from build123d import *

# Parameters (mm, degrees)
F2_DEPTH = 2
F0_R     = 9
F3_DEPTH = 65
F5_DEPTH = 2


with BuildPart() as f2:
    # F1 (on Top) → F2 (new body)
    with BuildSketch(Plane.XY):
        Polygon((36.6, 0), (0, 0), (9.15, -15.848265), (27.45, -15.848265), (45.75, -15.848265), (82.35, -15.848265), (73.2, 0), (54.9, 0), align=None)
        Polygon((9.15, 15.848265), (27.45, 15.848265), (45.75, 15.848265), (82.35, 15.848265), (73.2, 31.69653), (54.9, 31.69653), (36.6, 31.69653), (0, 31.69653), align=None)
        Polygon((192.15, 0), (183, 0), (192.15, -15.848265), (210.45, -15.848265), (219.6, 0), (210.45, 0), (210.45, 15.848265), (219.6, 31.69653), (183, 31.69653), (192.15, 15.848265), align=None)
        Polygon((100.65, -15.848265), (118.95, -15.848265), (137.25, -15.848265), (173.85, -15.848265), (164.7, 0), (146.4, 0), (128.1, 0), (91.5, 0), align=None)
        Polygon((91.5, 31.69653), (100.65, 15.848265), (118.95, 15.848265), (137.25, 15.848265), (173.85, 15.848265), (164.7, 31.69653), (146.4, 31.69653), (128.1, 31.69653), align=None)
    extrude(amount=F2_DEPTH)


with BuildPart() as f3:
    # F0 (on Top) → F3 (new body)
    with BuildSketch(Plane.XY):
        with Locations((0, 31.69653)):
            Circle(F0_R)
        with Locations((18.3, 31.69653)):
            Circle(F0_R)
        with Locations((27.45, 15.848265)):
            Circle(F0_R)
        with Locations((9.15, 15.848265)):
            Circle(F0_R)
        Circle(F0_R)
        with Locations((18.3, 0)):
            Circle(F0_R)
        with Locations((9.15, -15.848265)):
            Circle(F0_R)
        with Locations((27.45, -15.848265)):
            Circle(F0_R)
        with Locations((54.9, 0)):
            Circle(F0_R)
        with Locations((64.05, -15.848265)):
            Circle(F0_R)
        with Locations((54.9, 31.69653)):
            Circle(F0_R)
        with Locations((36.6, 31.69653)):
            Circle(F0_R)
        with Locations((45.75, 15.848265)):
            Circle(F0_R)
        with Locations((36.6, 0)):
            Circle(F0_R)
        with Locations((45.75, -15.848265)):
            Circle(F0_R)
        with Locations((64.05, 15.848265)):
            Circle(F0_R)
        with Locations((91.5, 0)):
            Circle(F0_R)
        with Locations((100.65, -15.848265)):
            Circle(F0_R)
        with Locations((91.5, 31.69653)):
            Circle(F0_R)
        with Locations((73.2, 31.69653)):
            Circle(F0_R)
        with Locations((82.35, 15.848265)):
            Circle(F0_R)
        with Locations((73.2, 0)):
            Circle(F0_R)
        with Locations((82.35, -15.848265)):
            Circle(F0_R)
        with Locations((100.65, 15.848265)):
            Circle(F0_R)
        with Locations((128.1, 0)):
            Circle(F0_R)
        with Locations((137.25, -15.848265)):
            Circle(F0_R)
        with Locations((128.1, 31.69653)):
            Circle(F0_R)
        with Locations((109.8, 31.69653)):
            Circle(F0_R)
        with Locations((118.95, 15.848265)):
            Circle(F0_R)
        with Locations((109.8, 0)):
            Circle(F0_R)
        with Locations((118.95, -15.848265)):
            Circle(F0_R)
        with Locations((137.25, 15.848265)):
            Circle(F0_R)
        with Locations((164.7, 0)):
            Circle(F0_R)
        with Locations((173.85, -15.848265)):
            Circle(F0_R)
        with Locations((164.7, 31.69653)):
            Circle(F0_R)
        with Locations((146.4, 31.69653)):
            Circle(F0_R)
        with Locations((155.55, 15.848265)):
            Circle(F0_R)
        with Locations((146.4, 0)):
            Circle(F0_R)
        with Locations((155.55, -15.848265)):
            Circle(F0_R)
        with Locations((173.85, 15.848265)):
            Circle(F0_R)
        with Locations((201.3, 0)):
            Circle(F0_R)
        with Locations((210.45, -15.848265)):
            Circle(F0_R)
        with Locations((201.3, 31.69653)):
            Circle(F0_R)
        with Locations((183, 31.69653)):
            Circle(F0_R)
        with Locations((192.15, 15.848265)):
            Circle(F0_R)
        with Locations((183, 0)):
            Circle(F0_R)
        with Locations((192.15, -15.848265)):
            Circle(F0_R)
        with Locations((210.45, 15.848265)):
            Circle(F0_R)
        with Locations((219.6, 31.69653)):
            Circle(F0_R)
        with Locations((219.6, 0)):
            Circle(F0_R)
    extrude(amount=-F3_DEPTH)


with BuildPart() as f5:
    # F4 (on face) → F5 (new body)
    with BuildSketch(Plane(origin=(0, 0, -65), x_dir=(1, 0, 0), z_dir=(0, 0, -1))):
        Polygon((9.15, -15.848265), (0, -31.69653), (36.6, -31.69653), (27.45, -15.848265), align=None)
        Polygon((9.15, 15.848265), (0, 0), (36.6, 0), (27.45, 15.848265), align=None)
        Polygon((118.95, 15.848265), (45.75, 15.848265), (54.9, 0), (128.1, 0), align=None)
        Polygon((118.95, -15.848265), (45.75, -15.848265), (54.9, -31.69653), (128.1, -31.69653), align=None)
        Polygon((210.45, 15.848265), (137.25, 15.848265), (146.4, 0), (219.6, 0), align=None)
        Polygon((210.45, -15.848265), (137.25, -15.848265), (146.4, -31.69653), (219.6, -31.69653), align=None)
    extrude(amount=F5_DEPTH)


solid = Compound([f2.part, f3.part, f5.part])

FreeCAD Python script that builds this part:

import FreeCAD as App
import Part
import Sketcher
Q = App.Units.Quantity

doc = App.newDocument("Part")
params = doc.addObject("Spreadsheet::Sheet", "Params")
for row, (alias, value) in enumerate([
    ("sketch1_width", "73.2 mm"),
    ("sketch1_width2", "18.3 mm"),
    ("sketch1_width3", "36.6 mm"),
    ("pad1_length", "2 mm"),
    ("sketch2_diameter", "18 mm"),
    ("pad2_length", "65 mm"),
    ("sketch3_width", "36.6 mm"),
    ("sketch3_width2", "18.3 mm"),
    ("sketch3_width3", "73.2 mm"),
    ("pad3_length", "2 mm"),
], start=1):
    params.set(f"A{row}", alias)
    params.set(f"B{row}", "=" + value)
    params.setAlias(f"B{row}", alias)

body = doc.addObject("PartDesign::Body", "Body")
body.AllowCompound = True

sketch1 = body.newObject("Sketcher::SketchObject", "Sketch")
sketch1.AttachmentSupport = (doc.getObject("XY_Plane"), [""])
sketch1.MapMode = "FlatFace"
sketch1.addGeometry(Part.LineSegment(App.Vector(0, 0, 0), App.Vector(9, -16, 0)), False)
sketch1.addGeometry(Part.LineSegment(App.Vector(9, -16, 0), App.Vector(82, -16, 0)), False)
sketch1.addGeometry(Part.LineSegment(App.Vector(82, -16, 0), App.Vector(73, 0, 0)), False)
sketch1.addGeometry(Part.LineSegment(App.Vector(73, 0, 0), App.Vector(0, 0, 0)), False)
sketch1.addGeometry(Part.LineSegment(App.Vector(9, 16, 0), App.Vector(82, 16, 0)), False)
sketch1.addGeometry(Part.LineSegment(App.Vector(82, 16, 0), App.Vector(73, 32, 0)), False)
sketch1.addGeometry(Part.LineSegment(App.Vector(73, 32, 0), App.Vector(0, 32, 0)), False)
sketch1.addGeometry(Part.LineSegment(App.Vector(0, 32, 0), App.Vector(9, 16, 0)), False)
sketch1.addGeometry(Part.LineSegment(App.Vector(192, 0, 0), App.Vector(183, 0, 0)), False)
sketch1.addGeometry(Part.LineSegment(App.Vector(183, 0, 0), App.Vector(192, -16, 0)), False)
sketch1.addGeometry(Part.LineSegment(App.Vector(192, -16, 0), App.Vector(210, -16, 0)), False)
sketch1.addGeometry(Part.LineSegment(App.Vector(210, -16, 0), App.Vector(220, 0, 0)), False)
sketch1.addGeometry(Part.LineSegment(App.Vector(220, 0, 0), App.Vector(210, 0, 0)), False)
sketch1.addGeometry(Part.LineSegment(App.Vector(210, 0, 0), App.Vector(210, 16, 0)), False)
sketch1.addGeometry(Part.LineSegment(App.Vector(210, 16, 0), App.Vector(220, 32, 0)), False)
sketch1.addGeometry(Part.LineSegment(App.Vector(220, 32, 0), App.Vector(183, 32, 0)), False)
sketch1.addGeometry(Part.LineSegment(App.Vector(183, 32, 0), App.Vector(192, 16, 0)), False)
sketch1.addGeometry(Part.LineSegment(App.Vector(192, 16, 0), App.Vector(192, 0, 0)), False)
sketch1.addGeometry(Part.LineSegment(App.Vector(101, -16, 0), App.Vector(174, -16, 0)), False)
sketch1.addGeometry(Part.LineSegment(App.Vector(174, -16, 0), App.Vector(165, 0, 0)), False)
sketch1.addGeometry(Part.LineSegment(App.Vector(165, 0, 0), App.Vector(92, 0, 0)), False)
sketch1.addGeometry(Part.LineSegment(App.Vector(92, 0, 0), App.Vector(101, -16, 0)), False)
sketch1.addGeometry(Part.LineSegment(App.Vector(92, 32, 0), App.Vector(101, 16, 0)), False)
sketch1.addGeometry(Part.LineSegment(App.Vector(101, 16, 0), App.Vector(174, 16, 0)), False)
sketch1.addGeometry(Part.LineSegment(App.Vector(174, 16, 0), App.Vector(165, 32, 0)), False)
sketch1.addGeometry(Part.LineSegment(App.Vector(165, 32, 0), App.Vector(92, 32, 0)), False)
sketch1.addConstraint(Sketcher.Constraint("Coincident", 0, 2, 1, 1))
sketch1.addConstraint(Sketcher.Constraint("Coincident", 1, 2, 2, 1))
sketch1.addConstraint(Sketcher.Constraint("Coincident", 2, 2, 3, 1))
sketch1.addConstraint(Sketcher.Constraint("Coincident", 3, 2, 0, 1))
sketch1.addConstraint(Sketcher.Constraint("Coincident", 4, 2, 5, 1))
sketch1.addConstraint(Sketcher.Constraint("Coincident", 5, 2, 6, 1))
sketch1.addConstraint(Sketcher.Constraint("Coincident", 6, 2, 7, 1))
sketch1.addConstraint(Sketcher.Constraint("Coincident", 7, 2, 4, 1))
sketch1.addConstraint(Sketcher.Constraint("Coincident", 8, 2, 9, 1))
sketch1.addConstraint(Sketcher.Constraint("Coincident", 9, 2, 10, 1))
sketch1.addConstraint(Sketcher.Constraint("Coincident", 10, 2, 11, 1))
sketch1.addConstraint(Sketcher.Constraint("Coincident", 11, 2, 12, 1))
sketch1.addConstraint(Sketcher.Constraint("Coincident", 12, 2, 13, 1))
sketch1.addConstraint(Sketcher.Constraint("Coincident", 13, 2, 14, 1))
sketch1.addConstraint(Sketcher.Constraint("Coincident", 14, 2, 15, 1))
sketch1.addConstraint(Sketcher.Constraint("Coincident", 15, 2, 16, 1))
sketch1.addConstraint(Sketcher.Constraint("Coincident", 16, 2, 17, 1))
sketch1.addConstraint(Sketcher.Constraint("Coincident", 17, 2, 8, 1))
sketch1.addConstraint(Sketcher.Constraint("Coincident", 18, 2, 19, 1))
sketch1.addConstraint(Sketcher.Constraint("Coincident", 19, 2, 20, 1))
sketch1.addConstraint(Sketcher.Constraint("Coincident", 20, 2, 21, 1))
sketch1.addConstraint(Sketcher.Constraint("Coincident", 21, 2, 18, 1))
sketch1.addConstraint(Sketcher.Constraint("Coincident", 22, 2, 23, 1))
sketch1.addConstraint(Sketcher.Constraint("Coincident", 23, 2, 24, 1))
sketch1.addConstraint(Sketcher.Constraint("Coincident", 24, 2, 25, 1))
sketch1.addConstraint(Sketcher.Constraint("Coincident", 25, 2, 22, 1))
sketch1.addConstraint(Sketcher.Constraint("Horizontal", 1))
sketch1.addConstraint(Sketcher.Constraint("Horizontal", 3))
sketch1.addConstraint(Sketcher.Constraint("Horizontal", 4))
sketch1.addConstraint(Sketcher.Constraint("Horizontal", 6))
sketch1.addConstraint(Sketcher.Constraint("Horizontal", 8))
sketch1.addConstraint(Sketcher.Constraint("Horizontal", 10))
sketch1.addConstraint(Sketcher.Constraint("Horizontal", 12))
sketch1.addConstraint(Sketcher.Constraint("Vertical", 13))
sketch1.addConstraint(Sketcher.Constraint("Horizontal", 15))
sketch1.addConstraint(Sketcher.Constraint("Vertical", 17))
sketch1.addConstraint(Sketcher.Constraint("Horizontal", 18))
sketch1.addConstraint(Sketcher.Constraint("Horizontal", 20))
sketch1.addConstraint(Sketcher.Constraint("Horizontal", 23))
sketch1.addConstraint(Sketcher.Constraint("Horizontal", 25))
sketch1.addConstraint(Sketcher.Constraint("Coincident", 3, 2, -1, 1))
sketch1.addConstraint(Sketcher.Constraint("Symmetric", 1, 2, 4, 2, -1))
sketch1.addConstraint(Sketcher.Constraint("Symmetric", 10, 2, 13, 2, -1))
sketch1.addConstraint(Sketcher.Constraint("Symmetric", 9, 2, 16, 2, -1))
sketch1.addConstraint(Sketcher.Constraint("Symmetric", 21, 2, 22, 2, -1))
sketch1.addConstraint(Sketcher.Constraint("PointOnObject", 6, 2, -2))
sketch1.addConstraint(Sketcher.Constraint("PointOnObject", 8, 2, -1))
sketch1.addConstraint(Sketcher.Constraint("PointOnObject", 11, 2, -1))
sketch1.addConstraint(Sketcher.Constraint("PointOnObject", 19, 2, -1))
sketch1.addConstraint(Sketcher.Constraint("Parallel", 0, 2))
sketch1.addConstraint(Sketcher.Constraint("Parallel", 2, 5))
sketch1.addConstraint(Sketcher.Constraint("Parallel", 5, 7))
sketch1.addConstraint(Sketcher.Constraint("Parallel", 7, 9))
sketch1.addConstraint(Sketcher.Constraint("Parallel", 11, 14))
sketch1.addConstraint(Sketcher.Constraint("Parallel", 9, 16))
sketch1.addConstraint(Sketcher.Constraint("Parallel", 16, 19))
sketch1.addConstraint(Sketcher.Constraint("Parallel", 19, 21))
sketch1.addConstraint(Sketcher.Constraint("Parallel", 21, 22))
sketch1.addConstraint(Sketcher.Constraint("Parallel", 22, 24))
sketch1.addConstraint(Sketcher.Constraint("Horizontal", 1, 2, 9, 2))
sketch1.addConstraint(Sketcher.Constraint("Horizontal", 6, 2, 14, 2))
sketch1.addConstraint(Sketcher.Constraint("Horizontal", 10, 2, 18, 2))
sketch1.addConstraint(Sketcher.Constraint("Horizontal", 15, 2, 24, 2))
sketch1.addConstraint(Sketcher.Constraint("Vertical", 2, 2, 5, 2))
sketch1.addConstraint(Sketcher.Constraint("Vertical", 18, 2, 23, 2))
sketch1.addConstraint(Sketcher.Constraint("Equal", 8, 12))
sketch1.addConstraint(Sketcher.Constraint("Equal", 6, 18))
sketch1.addConstraint(Sketcher.Constraint("Angle", 0, Q("-60 deg")))
sketch1.addConstraint(Sketcher.Constraint("DistanceX", 1, 1, 1, 2, 73.2))
sketch1.addConstraint(Sketcher.Constraint("DistanceX", 10, 1, 10, 2, 18.3))
sketch1.addConstraint(Sketcher.Constraint("DistanceX", 15, 2, 15, 1, 36.6))
sketch1.addConstraint(Sketcher.Constraint("DistanceX", -1, 1, 8, 2, 183.0))
sketch1.addConstraint(Sketcher.Constraint("DistanceX", -1, 1, 19, 2, 164.7))
sketch1.setExpression("Constraints[68]", "Params.sketch1_width")
sketch1.setExpression("Constraints[69]", "Params.sketch1_width2")
sketch1.setExpression("Constraints[70]", "Params.sketch1_width3")
pad1 = body.newObject("PartDesign::Pad", "Pad")
pad1.Profile = sketch1
pad1.setExpression("Length", "Params.pad1_length")
body2 = doc.addObject("PartDesign::Body", "Body001")
body2.AllowCompound = True

sketch2 = body2.newObject("Sketcher::SketchObject", "Sketch001")
sketch2.AttachmentSupport = (doc.getObject("XY_Plane001"), [""])
sketch2.MapMode = "FlatFace"
sketch2.addGeometry(Part.Circle(App.Vector(0, 32, 0), App.Vector(0, 0, 1), 9), False)
sketch2.addGeometry(Part.Circle(App.Vector(18, 32, 0), App.Vector(0, 0, 1), 9), False)
sketch2.addGeometry(Part.Circle(App.Vector(27, 16, 0), App.Vector(0, 0, 1), 9), False)
sketch2.addGeometry(Part.Circle(App.Vector(9, 16, 0), App.Vector(0, 0, 1), 9), False)
sketch2.addGeometry(Part.Circle(App.Vector(0, 0, 0), App.Vector(0, 0, 1), 9), False)
sketch2.addGeometry(Part.Circle(App.Vector(18, 0, 0), App.Vector(0, 0, 1), 9), False)
sketch2.addGeometry(Part.Circle(App.Vector(9, -16, 0), App.Vector(0, 0, 1), 9), False)
sketch2.addGeometry(Part.Circle(App.Vector(27, -16, 0), App.Vector(0, 0, 1), 9), False)
sketch2.addGeometry(Part.Circle(App.Vector(55, 0, 0), App.Vector(0, 0, 1), 9), False)
sketch2.addGeometry(Part.Circle(App.Vector(64, -16, 0), App.Vector(0, 0, 1), 9), False)
sketch2.addGeometry(Part.Circle(App.Vector(55, 32, 0), App.Vector(0, 0, 1), 9), False)
sketch2.addGeometry(Part.Circle(App.Vector(37, 32, 0), App.Vector(0, 0, 1), 9), False)
sketch2.addGeometry(Part.Circle(App.Vector(46, 16, 0), App.Vector(0, 0, 1), 9), False)
sketch2.addGeometry(Part.Circle(App.Vector(37, 0, 0), App.Vector(0, 0, 1), 9), False)
sketch2.addGeometry(Part.Circle(App.Vector(46, -16, 0), App.Vector(0, 0, 1), 9), False)
sketch2.addGeometry(Part.Circle(App.Vector(64, 16, 0), App.Vector(0, 0, 1), 9), False)
sketch2.addGeometry(Part.Circle(App.Vector(92, 0, 0), App.Vector(0, 0, 1), 9), False)
sketch2.addGeometry(Part.Circle(App.Vector(101, -16, 0), App.Vector(0, 0, 1), 9), False)
sketch2.addGeometry(Part.Circle(App.Vector(92, 32, 0), App.Vector(0, 0, 1), 9), False)
sketch2.addGeometry(Part.Circle(App.Vector(73, 32, 0), App.Vector(0, 0, 1), 9), False)
sketch2.addGeometry(Part.Circle(App.Vector(82, 16, 0), App.Vector(0, 0, 1), 9), False)
sketch2.addGeometry(Part.Circle(App.Vector(73, 0, 0), App.Vector(0, 0, 1), 9), False)
sketch2.addGeometry(Part.Circle(App.Vector(82, -16, 0), App.Vector(0, 0, 1), 9), False)
sketch2.addGeometry(Part.Circle(App.Vector(101, 16, 0), App.Vector(0, 0, 1), 9), False)
sketch2.addGeometry(Part.Circle(App.Vector(128, 0, 0), App.Vector(0, 0, 1), 9), False)
sketch2.addGeometry(Part.Circle(App.Vector(137, -16, 0), App.Vector(0, 0, 1), 9), False)
sketch2.addGeometry(Part.Circle(App.Vector(128, 32, 0), App.Vector(0, 0, 1), 9), False)
sketch2.addGeometry(Part.Circle(App.Vector(110, 32, 0), App.Vector(0, 0, 1), 9), False)
sketch2.addGeometry(Part.Circle(App.Vector(119, 16, 0), App.Vector(0, 0, 1), 9), False)
sketch2.addGeometry(Part.Circle(App.Vector(110, 0, 0), App.Vector(0, 0, 1), 9), False)
sketch2.addGeometry(Part.Circle(App.Vector(119, -16, 0), App.Vector(0, 0, 1), 9), False)
sketch2.addGeometry(Part.Circle(App.Vector(137, 16, 0), App.Vector(0, 0, 1), 9), False)
sketch2.addGeometry(Part.Circle(App.Vector(165, 0, 0), App.Vector(0, 0, 1), 9), False)
sketch2.addGeometry(Part.Circle(App.Vector(174, -16, 0), App.Vector(0, 0, 1), 9), False)
sketch2.addGeometry(Part.Circle(App.Vector(165, 32, 0), App.Vector(0, 0, 1), 9), False)
sketch2.addGeometry(Part.Circle(App.Vector(146, 32, 0), App.Vector(0, 0, 1), 9), False)
sketch2.addGeometry(Part.Circle(App.Vector(156, 16, 0), App.Vector(0, 0, 1), 9), False)
sketch2.addGeometry(Part.Circle(App.Vector(146, 0, 0), App.Vector(0, 0, 1), 9), False)
sketch2.addGeometry(Part.Circle(App.Vector(156, -16, 0), App.Vector(0, 0, 1), 9), False)
sketch2.addGeometry(Part.Circle(App.Vector(174, 16, 0), App.Vector(0, 0, 1), 9), False)
sketch2.addGeometry(Part.Circle(App.Vector(201, 0, 0), App.Vector(0, 0, 1), 9), False)
sketch2.addGeometry(Part.Circle(App.Vector(210, -16, 0), App.Vector(0, 0, 1), 9), False)
sketch2.addGeometry(Part.Circle(App.Vector(201, 32, 0), App.Vector(0, 0, 1), 9), False)
sketch2.addGeometry(Part.Circle(App.Vector(183, 32, 0), App.Vector(0, 0, 1), 9), False)
sketch2.addGeometry(Part.Circle(App.Vector(192, 16, 0), App.Vector(0, 0, 1), 9), False)
sketch2.addGeometry(Part.Circle(App.Vector(183, 0, 0), App.Vector(0, 0, 1), 9), False)
sketch2.addGeometry(Part.Circle(App.Vector(192, -16, 0), App.Vector(0, 0, 1), 9), False)
sketch2.addGeometry(Part.Circle(App.Vector(210, 16, 0), App.Vector(0, 0, 1), 9), False)
sketch2.addGeometry(Part.Circle(App.Vector(220, 32, 0), App.Vector(0, 0, 1), 9), False)
sketch2.addGeometry(Part.Circle(App.Vector(220, 0, 0), App.Vector(0, 0, 1), 9), False)
sketch2.addConstraint(Sketcher.Constraint("Coincident", 4, 3, -1, 1))
sketch2.addConstraint(Sketcher.Constraint("Equal", 0, 1))
sketch2.addConstraint(Sketcher.Constraint("Equal", 1, 2))
sketch2.addConstraint(Sketcher.Constraint("Equal", 2, 3))
sketch2.addConstraint(Sketcher.Constraint("Equal", 3, 4))
sketch2.addConstraint(Sketcher.Constraint("Equal", 4, 5))
sketch2.addConstraint(Sketcher.Constraint("Equal", 5, 6))
sketch2.addConstraint(Sketcher.Constraint("Equal", 6, 7))
sketch2.addConstraint(Sketcher.Constraint("Equal", 7, 8))
sketch2.addConstraint(Sketcher.Constraint("Equal", 8, 9))
sketch2.addConstraint(Sketcher.Constraint("Equal", 9, 10))
sketch2.addConstraint(Sketcher.Constraint("Equal", 10, 11))
sketch2.addConstraint(Sketcher.Constraint("Equal", 11, 12))
sketch2.addConstraint(Sketcher.Constraint("Equal", 12, 13))
sketch2.addConstraint(Sketcher.Constraint("Equal", 13, 14))
sketch2.addConstraint(Sketcher.Constraint("Equal", 14, 15))
sketch2.addConstraint(Sketcher.Constraint("Equal", 15, 16))
sketch2.addConstraint(Sketcher.Constraint("Equal", 16, 17))
sketch2.addConstraint(Sketcher.Constraint("Equal", 17, 18))
sketch2.addConstraint(Sketcher.Constraint("Equal", 18, 19))
sketch2.addConstraint(Sketcher.Constraint("Equal", 19, 20))
sketch2.addConstraint(Sketcher.Constraint("Equal", 20, 21))
sketch2.addConstraint(Sketcher.Constraint("Equal", 21, 22))
sketch2.addConstraint(Sketcher.Constraint("Equal", 22, 23))
sketch2.addConstraint(Sketcher.Constraint("Equal", 23, 24))
sketch2.addConstraint(Sketcher.Constraint("Equal", 24, 25))
sketch2.addConstraint(Sketcher.Constraint("Equal", 25, 26))
sketch2.addConstraint(Sketcher.Constraint("Equal", 26, 27))
sketch2.addConstraint(Sketcher.Constraint("Equal", 27, 28))
sketch2.addConstraint(Sketcher.Constraint("Equal", 28, 29))
sketch2.addConstraint(Sketcher.Constraint("Equal", 29, 30))
sketch2.addConstraint(Sketcher.Constraint("Equal", 30, 31))
sketch2.addConstraint(Sketcher.Constraint("Equal", 31, 32))
sketch2.addConstraint(Sketcher.Constraint("Equal", 32, 33))
sketch2.addConstraint(Sketcher.Constraint("Equal", 33, 34))
sketch2.addConstraint(Sketcher.Constraint("Equal", 34, 35))
sketch2.addConstraint(Sketcher.Constraint("Equal", 35, 36))
sketch2.addConstraint(Sketcher.Constraint("Equal", 36, 37))
sketch2.addConstraint(Sketcher.Constraint("Equal", 37, 38))
sketch2.addConstraint(Sketcher.Constraint("Equal", 38, 39))
sketch2.addConstraint(Sketcher.Constraint("Equal", 39, 40))
sketch2.addConstraint(Sketcher.Constraint("Equal", 40, 41))
sketch2.addConstraint(Sketcher.Constraint("Equal", 41, 42))
sketch2.addConstraint(Sketcher.Constraint("Equal", 42, 43))
sketch2.addConstraint(Sketcher.Constraint("Equal", 43, 44))
sketch2.addConstraint(Sketcher.Constraint("Equal", 44, 45))
sketch2.addConstraint(Sketcher.Constraint("Equal", 45, 46))
sketch2.addConstraint(Sketcher.Constraint("Equal", 46, 47))
sketch2.addConstraint(Sketcher.Constraint("Equal", 47, 48))
sketch2.addConstraint(Sketcher.Constraint("Equal", 48, 49))
sketch2.addConstraint(Sketcher.Constraint("Symmetric", 3, 3, 6, 3, -1))
sketch2.addConstraint(Sketcher.Constraint("Symmetric", 2, 3, 7, 3, -1))
sketch2.addConstraint(Sketcher.Constraint("Symmetric", 12, 3, 14, 3, -1))
sketch2.addConstraint(Sketcher.Constraint("Symmetric", 9, 3, 15, 3, -1))
sketch2.addConstraint(Sketcher.Constraint("Symmetric", 20, 3, 22, 3, -1))
sketch2.addConstraint(Sketcher.Constraint("Symmetric", 17, 3, 23, 3, -1))
sketch2.addConstraint(Sketcher.Constraint("Symmetric", 28, 3, 30, 3, -1))
sketch2.addConstraint(Sketcher.Constraint("Symmetric", 25, 3, 31, 3, -1))
sketch2.addConstraint(Sketcher.Constraint("Symmetric", 36, 3, 38, 3, -1))
sketch2.addConstraint(Sketcher.Constraint("Symmetric", 33, 3, 39, 3, -1))
sketch2.addConstraint(Sketcher.Constraint("Symmetric", 44, 3, 46, 3, -1))
sketch2.addConstraint(Sketcher.Constraint("Symmetric", 41, 3, 47, 3, -1))
sketch2.addConstraint(Sketcher.Constraint("PointOnObject", 0, 3, -2))
sketch2.addConstraint(Sketcher.Constraint("PointOnObject", 5, 3, -1))
sketch2.addConstraint(Sketcher.Constraint("PointOnObject", 8, 3, -1))
sketch2.addConstraint(Sketcher.Constraint("PointOnObject", 13, 3, -1))
sketch2.addConstraint(Sketcher.Constraint("PointOnObject", 16, 3, -1))
sketch2.addConstraint(Sketcher.Constraint("PointOnObject", 21, 3, -1))
sketch2.addConstraint(Sketcher.Constraint("PointOnObject", 24, 3, -1))
sketch2.addConstraint(Sketcher.Constraint("PointOnObject", 29, 3, -1))
sketch2.addConstraint(Sketcher.Constraint("PointOnObject", 32, 3, -1))
sketch2.addConstraint(Sketcher.Constraint("PointOnObject", 37, 3, -1))
sketch2.addConstraint(Sketcher.Constraint("PointOnObject", 40, 3, -1))
sketch2.addConstraint(Sketcher.Constraint("PointOnObject", 45, 3, -1))
sketch2.addConstraint(Sketcher.Constraint("PointOnObject", 49, 3, -1))
sketch2.addConstraint(Sketcher.Constraint("Horizontal", 0, 3, 1, 3))
sketch2.addConstraint(Sketcher.Constraint("Horizontal", 2, 3, 3, 3))
sketch2.addConstraint(Sketcher.Constraint("Horizontal", 7, 3, 9, 3))
sketch2.addConstraint(Sketcher.Constraint("Horizontal", 1, 3, 10, 3))
sketch2.addConstraint(Sketcher.Constraint("Horizontal", 10, 3, 11, 3))
sketch2.addConstraint(Sketcher.Constraint("Horizontal", 3, 3, 12, 3))
sketch2.addConstraint(Sketcher.Constraint("Horizontal", 14, 3, 17, 3))
sketch2.addConstraint(Sketcher.Constraint("Horizontal", 11, 3, 18, 3))
sketch2.addConstraint(Sketcher.Constraint("Horizontal", 18, 3, 19, 3))
sketch2.addConstraint(Sketcher.Constraint("Horizontal", 15, 3, 20, 3))
sketch2.addConstraint(Sketcher.Constraint("Horizontal", 22, 3, 25, 3))
sketch2.addConstraint(Sketcher.Constraint("Horizontal", 19, 3, 26, 3))
sketch2.addConstraint(Sketcher.Constraint("Horizontal", 26, 3, 27, 3))
sketch2.addConstraint(Sketcher.Constraint("Horizontal", 23, 3, 28, 3))
sketch2.addConstraint(Sketcher.Constraint("Horizontal", 30, 3, 33, 3))
sketch2.addConstraint(Sketcher.Constraint("Horizontal", 27, 3, 34, 3))
sketch2.addConstraint(Sketcher.Constraint("Horizontal", 34, 3, 35, 3))
sketch2.addConstraint(Sketcher.Constraint("Horizontal", 31, 3, 36, 3))
sketch2.addConstraint(Sketcher.Constraint("Horizontal", 38, 3, 41, 3))
sketch2.addConstraint(Sketcher.Constraint("Horizontal", 35, 3, 42, 3))
sketch2.addConstraint(Sketcher.Constraint("Horizontal", 42, 3, 43, 3))
sketch2.addConstraint(Sketcher.Constraint("Horizontal", 39, 3, 44, 3))
sketch2.addConstraint(Sketcher.Constraint("Horizontal", 43, 3, 48, 3))
sketch2.addConstraint(Sketcher.Constraint("Vertical", 1, 3, 5, 3))
sketch2.addConstraint(Sketcher.Constraint("Vertical", 8, 3, 10, 3))
sketch2.addConstraint(Sketcher.Constraint("Vertical", 11, 3, 13, 3))
sketch2.addConstraint(Sketcher.Constraint("Vertical", 16, 3, 18, 3))
sketch2.addConstraint(Sketcher.Constraint("Vertical", 19, 3, 21, 3))
sketch2.addConstraint(Sketcher.Constraint("Vertical", 24, 3, 26, 3))
sketch2.addConstraint(Sketcher.Constraint("Vertical", 27, 3, 29, 3))
sketch2.addConstraint(Sketcher.Constraint("Vertical", 32, 3, 34, 3))
sketch2.addConstraint(Sketcher.Constraint("Vertical", 35, 3, 37, 3))
sketch2.addConstraint(Sketcher.Constraint("Vertical", 40, 3, 42, 3))
sketch2.addConstraint(Sketcher.Constraint("Vertical", 43, 3, 45, 3))
sketch2.addConstraint(Sketcher.Constraint("Vertical", 48, 3, 49, 3))
sketch2.addConstraint(Sketcher.Constraint("Diameter", 0, 18.0))
sketch2.addConstraint(Sketcher.Constraint("DistanceX", -1, 1, 43, 3, 183.0))
sketch2.addConstraint(Sketcher.Constraint("DistanceX", -1, 1, 1, 3, 18.3))
sketch2.addConstraint(Sketcher.Constraint("DistanceX", -1, 1, 8, 3, 54.9))
sketch2.addConstraint(Sketcher.Constraint("DistanceX", -1, 1, 11, 3, 36.6))
sketch2.addConstraint(Sketcher.Constraint("DistanceX", -1, 1, 16, 3, 91.5))
sketch2.addConstraint(Sketcher.Constraint("DistanceX", -1, 1, 19, 3, 73.2))
sketch2.addConstraint(Sketcher.Constraint("DistanceX", -1, 1, 24, 3, 128.1))
sketch2.addConstraint(Sketcher.Constraint("DistanceX", -1, 1, 27, 3, 109.8))
sketch2.addConstraint(Sketcher.Constraint("DistanceX", -1, 1, 32, 3, 164.7))
sketch2.addConstraint(Sketcher.Constraint("DistanceX", -1, 1, 35, 3, 146.4))
sketch2.addConstraint(Sketcher.Constraint("DistanceX", -1, 1, 40, 3, 201.3))
sketch2.addConstraint(Sketcher.Constraint("DistanceX", -1, 1, 48, 3, 219.6))
sketch2.addConstraint(Sketcher.Constraint("DistanceX", 3, 3, 2, 3, 18.3))
sketch2.addConstraint(Sketcher.Constraint("DistanceX", 7, 3, 9, 3, 36.6))
sketch2.addConstraint(Sketcher.Constraint("DistanceX", 2, 3, 12, 3, 18.3))
sketch2.addConstraint(Sketcher.Constraint("DistanceX", 9, 3, 17, 3, 36.6))
sketch2.addConstraint(Sketcher.Constraint("DistanceX", 15, 3, 20, 3, 18.3))
sketch2.addConstraint(Sketcher.Constraint("DistanceX", 17, 3, 25, 3, 36.6))
sketch2.addConstraint(Sketcher.Constraint("DistanceX", 23, 3, 28, 3, 18.3))
sketch2.addConstraint(Sketcher.Constraint("DistanceX", 25, 3, 33, 3, 36.6))
sketch2.addConstraint(Sketcher.Constraint("DistanceX", 31, 3, 36, 3, 18.3))
sketch2.addConstraint(Sketcher.Constraint("DistanceX", 33, 3, 41, 3, 36.6))
sketch2.addConstraint(Sketcher.Constraint("DistanceX", 39, 3, 44, 3, 18.3))
sketch2.addConstraint(Sketcher.Constraint("DistanceX", -1, 1, 2, 3, 27.45))
sketch2.addConstraint(Sketcher.Constraint("DistanceY", -1, 1, 0, 3, 31.69653))
sketch2.addConstraint(Sketcher.Constraint("DistanceY", 6, 3, 3, 3, 31.69653))
sketch2.setExpression("Constraints[110]", "Params.sketch2_diameter")
pad2 = body2.newObject("PartDesign::Pad", "Pad001")
pad2.Profile = sketch2
pad2.setExpression("Length", "Params.pad2_length")
pad2.Reversed = True
body3 = doc.addObject("PartDesign::Body", "Body002")
body3.AllowCompound = True

sketch3 = body3.newObject("Sketcher::SketchObject", "Sketch002")
sketch3.AttachmentSupport = (doc.getObject("XY_Plane002"), [""])
sketch3.MapMode = "FlatFace"
sketch3.AttachmentOffset = App.Placement(App.Vector(0, 0, -65), App.Rotation())
sketch3.addGeometry(Part.LineSegment(App.Vector(9, 16, 0), App.Vector(0, 32, 0)), False)
sketch3.addGeometry(Part.LineSegment(App.Vector(0, 32, 0), App.Vector(37, 32, 0)), False)
sketch3.addGeometry(Part.LineSegment(App.Vector(37, 32, 0), App.Vector(27, 16, 0)), False)
sketch3.addGeometry(Part.LineSegment(App.Vector(27, 16, 0), App.Vector(9, 16, 0)), False)
sketch3.addGeometry(Part.LineSegment(App.Vector(9, -16, 0), App.Vector(0, 0, 0)), False)
sketch3.addGeometry(Part.LineSegment(App.Vector(0, 0, 0), App.Vector(37, 0, 0)), False)
sketch3.addGeometry(Part.LineSegment(App.Vector(37, 0, 0), App.Vector(27, -16, 0)), False)
sketch3.addGeometry(Part.LineSegment(App.Vector(27, -16, 0), App.Vector(9, -16, 0)), False)
sketch3.addGeometry(Part.LineSegment(App.Vector(119, -16, 0), App.Vector(46, -16, 0)), False)
sketch3.addGeometry(Part.LineSegment(App.Vector(46, -16, 0), App.Vector(55, 0, 0)), False)
sketch3.addGeometry(Part.LineSegment(App.Vector(55, 0, 0), App.Vector(128, 0, 0)), False)
sketch3.addGeometry(Part.LineSegment(App.Vector(128, 0, 0), App.Vector(119, -16, 0)), False)
sketch3.addGeometry(Part.LineSegment(App.Vector(119, 16, 0), App.Vector(46, 16, 0)), False)
sketch3.addGeometry(Part.LineSegment(App.Vector(46, 16, 0), App.Vector(55, 32, 0)), False)
sketch3.addGeometry(Part.LineSegment(App.Vector(55, 32, 0), App.Vector(128, 32, 0)), False)
sketch3.addGeometry(Part.LineSegment(App.Vector(128, 32, 0), App.Vector(119, 16, 0)), False)
sketch3.addGeometry(Part.LineSegment(App.Vector(210, -16, 0), App.Vector(137, -16, 0)), False)
sketch3.addGeometry(Part.LineSegment(App.Vector(137, -16, 0), App.Vector(146, 0, 0)), False)
sketch3.addGeometry(Part.LineSegment(App.Vector(146, 0, 0), App.Vector(220, 0, 0)), False)
sketch3.addGeometry(Part.LineSegment(App.Vector(220, 0, 0), App.Vector(210, -16, 0)), False)
sketch3.addGeometry(Part.LineSegment(App.Vector(210, 16, 0), App.Vector(137, 16, 0)), False)
sketch3.addGeometry(Part.LineSegment(App.Vector(137, 16, 0), App.Vector(146, 32, 0)), False)
sketch3.addGeometry(Part.LineSegment(App.Vector(146, 32, 0), App.Vector(220, 32, 0)), False)
sketch3.addGeometry(Part.LineSegment(App.Vector(220, 32, 0), App.Vector(210, 16, 0)), False)
sketch3.addConstraint(Sketcher.Constraint("Coincident", 0, 2, 1, 1))
sketch3.addConstraint(Sketcher.Constraint("Coincident", 1, 2, 2, 1))
sketch3.addConstraint(Sketcher.Constraint("Coincident", 2, 2, 3, 1))
sketch3.addConstraint(Sketcher.Constraint("Coincident", 3, 2, 0, 1))
sketch3.addConstraint(Sketcher.Constraint("Coincident", 4, 2, 5, 1))
sketch3.addConstraint(Sketcher.Constraint("Coincident", 5, 2, 6, 1))
sketch3.addConstraint(Sketcher.Constraint("Coincident", 6, 2, 7, 1))
sketch3.addConstraint(Sketcher.Constraint("Coincident", 7, 2, 4, 1))
sketch3.addConstraint(Sketcher.Constraint("Coincident", 8, 2, 9, 1))
sketch3.addConstraint(Sketcher.Constraint("Coincident", 9, 2, 10, 1))
sketch3.addConstraint(Sketcher.Constraint("Coincident", 10, 2, 11, 1))
sketch3.addConstraint(Sketcher.Constraint("Coincident", 11, 2, 8, 1))
sketch3.addConstraint(Sketcher.Constraint("Coincident", 12, 2, 13, 1))
sketch3.addConstraint(Sketcher.Constraint("Coincident", 13, 2, 14, 1))
sketch3.addConstraint(Sketcher.Constraint("Coincident", 14, 2, 15, 1))
sketch3.addConstraint(Sketcher.Constraint("Coincident", 15, 2, 12, 1))
sketch3.addConstraint(Sketcher.Constraint("Coincident", 16, 2, 17, 1))
sketch3.addConstraint(Sketcher.Constraint("Coincident", 17, 2, 18, 1))
sketch3.addConstraint(Sketcher.Constraint("Coincident", 18, 2, 19, 1))
sketch3.addConstraint(Sketcher.Constraint("Coincident", 19, 2, 16, 1))
sketch3.addConstraint(Sketcher.Constraint("Coincident", 20, 2, 21, 1))
sketch3.addConstraint(Sketcher.Constraint("Coincident", 21, 2, 22, 1))
sketch3.addConstraint(Sketcher.Constraint("Coincident", 22, 2, 23, 1))
sketch3.addConstraint(Sketcher.Constraint("Coincident", 23, 2, 20, 1))
sketch3.addConstraint(Sketcher.Constraint("Horizontal", 1))
sketch3.addConstraint(Sketcher.Constraint("Horizontal", 3))
sketch3.addConstraint(Sketcher.Constraint("Horizontal", 5))
sketch3.addConstraint(Sketcher.Constraint("Horizontal", 7))
sketch3.addConstraint(Sketcher.Constraint("Horizontal", 8))
sketch3.addConstraint(Sketcher.Constraint("Horizontal", 10))
sketch3.addConstraint(Sketcher.Constraint("Horizontal", 12))
sketch3.addConstraint(Sketcher.Constraint("Horizontal", 14))
sketch3.addConstraint(Sketcher.Constraint("Horizontal", 16))
sketch3.addConstraint(Sketcher.Constraint("Horizontal", 18))
sketch3.addConstraint(Sketcher.Constraint("Horizontal", 20))
sketch3.addConstraint(Sketcher.Constraint("Horizontal", 22))
sketch3.addConstraint(Sketcher.Constraint("Coincident", 4, 2, -1, 1))
sketch3.addConstraint(Sketcher.Constraint("Symmetric", 2, 2, 6, 2, -1))
sketch3.addConstraint(Sketcher.Constraint("Symmetric", 8, 2, 12, 2, -1))
sketch3.addConstraint(Sketcher.Constraint("Symmetric", 16, 2, 20, 2, -1))
sketch3.addConstraint(Sketcher.Constraint("PointOnObject", 0, 2, -2))
sketch3.addConstraint(Sketcher.Constraint("PointOnObject", 9, 2, -1))
sketch3.addConstraint(Sketcher.Constraint("PointOnObject", 17, 2, -1))
sketch3.addConstraint(Sketcher.Constraint("Parallel", 0, 4))
sketch3.addConstraint(Sketcher.Constraint("Parallel", 2, 6))
sketch3.addConstraint(Sketcher.Constraint("Parallel", 6, 9))
sketch3.addConstraint(Sketcher.Constraint("Parallel", 9, 11))
sketch3.addConstraint(Sketcher.Constraint("Parallel", 11, 13))
sketch3.addConstraint(Sketcher.Constraint("Parallel", 13, 15))
sketch3.addConstraint(Sketcher.Constraint("Parallel", 15, 17))
sketch3.addConstraint(Sketcher.Constraint("Parallel", 17, 19))
sketch3.addConstraint(Sketcher.Constraint("Parallel", 19, 21))
sketch3.addConstraint(Sketcher.Constraint("Parallel", 21, 23))
sketch3.addConstraint(Sketcher.Constraint("Horizontal", 7, 2, 8, 2))
sketch3.addConstraint(Sketcher.Constraint("Horizontal", 1, 2, 13, 2))
sketch3.addConstraint(Sketcher.Constraint("Horizontal", 11, 2, 16, 2))
sketch3.addConstraint(Sketcher.Constraint("Horizontal", 14, 2, 21, 2))
sketch3.addConstraint(Sketcher.Constraint("Vertical", 1, 2, 5, 2))
sketch3.addConstraint(Sketcher.Constraint("Vertical", 10, 2, 14, 2))
sketch3.addConstraint(Sketcher.Constraint("Vertical", 18, 2, 22, 2))
sketch3.addConstraint(Sketcher.Constraint("Equal", 14, 16))
sketch3.addConstraint(Sketcher.Constraint("Equal", 0, 2))
sketch3.addConstraint(Sketcher.Constraint("Angle", 0, Q("120 deg")))
sketch3.addConstraint(Sketcher.Constraint("DistanceX", 1, 1, 1, 2, 36.6))
sketch3.addConstraint(Sketcher.Constraint("DistanceX", 3, 2, 3, 1, 18.3))
sketch3.addConstraint(Sketcher.Constraint("DistanceX", 8, 2, 8, 1, 73.2))
sketch3.addConstraint(Sketcher.Constraint("DistanceX", -1, 1, 9, 2, 54.9))
sketch3.addConstraint(Sketcher.Constraint("DistanceX", -1, 1, 17, 2, 146.4))
sketch3.setExpression("Constraints[63]", "Params.sketch3_width")
sketch3.setExpression("Constraints[64]", "Params.sketch3_width2")
sketch3.setExpression("Constraints[65]", "Params.sketch3_width3")
pad3 = body3.newObject("PartDesign::Pad", "Pad002")
pad3.Profile = sketch3
pad3.setExpression("Length", "Params.pad3_length")
pad3.Reversed = True

doc.recompute()
